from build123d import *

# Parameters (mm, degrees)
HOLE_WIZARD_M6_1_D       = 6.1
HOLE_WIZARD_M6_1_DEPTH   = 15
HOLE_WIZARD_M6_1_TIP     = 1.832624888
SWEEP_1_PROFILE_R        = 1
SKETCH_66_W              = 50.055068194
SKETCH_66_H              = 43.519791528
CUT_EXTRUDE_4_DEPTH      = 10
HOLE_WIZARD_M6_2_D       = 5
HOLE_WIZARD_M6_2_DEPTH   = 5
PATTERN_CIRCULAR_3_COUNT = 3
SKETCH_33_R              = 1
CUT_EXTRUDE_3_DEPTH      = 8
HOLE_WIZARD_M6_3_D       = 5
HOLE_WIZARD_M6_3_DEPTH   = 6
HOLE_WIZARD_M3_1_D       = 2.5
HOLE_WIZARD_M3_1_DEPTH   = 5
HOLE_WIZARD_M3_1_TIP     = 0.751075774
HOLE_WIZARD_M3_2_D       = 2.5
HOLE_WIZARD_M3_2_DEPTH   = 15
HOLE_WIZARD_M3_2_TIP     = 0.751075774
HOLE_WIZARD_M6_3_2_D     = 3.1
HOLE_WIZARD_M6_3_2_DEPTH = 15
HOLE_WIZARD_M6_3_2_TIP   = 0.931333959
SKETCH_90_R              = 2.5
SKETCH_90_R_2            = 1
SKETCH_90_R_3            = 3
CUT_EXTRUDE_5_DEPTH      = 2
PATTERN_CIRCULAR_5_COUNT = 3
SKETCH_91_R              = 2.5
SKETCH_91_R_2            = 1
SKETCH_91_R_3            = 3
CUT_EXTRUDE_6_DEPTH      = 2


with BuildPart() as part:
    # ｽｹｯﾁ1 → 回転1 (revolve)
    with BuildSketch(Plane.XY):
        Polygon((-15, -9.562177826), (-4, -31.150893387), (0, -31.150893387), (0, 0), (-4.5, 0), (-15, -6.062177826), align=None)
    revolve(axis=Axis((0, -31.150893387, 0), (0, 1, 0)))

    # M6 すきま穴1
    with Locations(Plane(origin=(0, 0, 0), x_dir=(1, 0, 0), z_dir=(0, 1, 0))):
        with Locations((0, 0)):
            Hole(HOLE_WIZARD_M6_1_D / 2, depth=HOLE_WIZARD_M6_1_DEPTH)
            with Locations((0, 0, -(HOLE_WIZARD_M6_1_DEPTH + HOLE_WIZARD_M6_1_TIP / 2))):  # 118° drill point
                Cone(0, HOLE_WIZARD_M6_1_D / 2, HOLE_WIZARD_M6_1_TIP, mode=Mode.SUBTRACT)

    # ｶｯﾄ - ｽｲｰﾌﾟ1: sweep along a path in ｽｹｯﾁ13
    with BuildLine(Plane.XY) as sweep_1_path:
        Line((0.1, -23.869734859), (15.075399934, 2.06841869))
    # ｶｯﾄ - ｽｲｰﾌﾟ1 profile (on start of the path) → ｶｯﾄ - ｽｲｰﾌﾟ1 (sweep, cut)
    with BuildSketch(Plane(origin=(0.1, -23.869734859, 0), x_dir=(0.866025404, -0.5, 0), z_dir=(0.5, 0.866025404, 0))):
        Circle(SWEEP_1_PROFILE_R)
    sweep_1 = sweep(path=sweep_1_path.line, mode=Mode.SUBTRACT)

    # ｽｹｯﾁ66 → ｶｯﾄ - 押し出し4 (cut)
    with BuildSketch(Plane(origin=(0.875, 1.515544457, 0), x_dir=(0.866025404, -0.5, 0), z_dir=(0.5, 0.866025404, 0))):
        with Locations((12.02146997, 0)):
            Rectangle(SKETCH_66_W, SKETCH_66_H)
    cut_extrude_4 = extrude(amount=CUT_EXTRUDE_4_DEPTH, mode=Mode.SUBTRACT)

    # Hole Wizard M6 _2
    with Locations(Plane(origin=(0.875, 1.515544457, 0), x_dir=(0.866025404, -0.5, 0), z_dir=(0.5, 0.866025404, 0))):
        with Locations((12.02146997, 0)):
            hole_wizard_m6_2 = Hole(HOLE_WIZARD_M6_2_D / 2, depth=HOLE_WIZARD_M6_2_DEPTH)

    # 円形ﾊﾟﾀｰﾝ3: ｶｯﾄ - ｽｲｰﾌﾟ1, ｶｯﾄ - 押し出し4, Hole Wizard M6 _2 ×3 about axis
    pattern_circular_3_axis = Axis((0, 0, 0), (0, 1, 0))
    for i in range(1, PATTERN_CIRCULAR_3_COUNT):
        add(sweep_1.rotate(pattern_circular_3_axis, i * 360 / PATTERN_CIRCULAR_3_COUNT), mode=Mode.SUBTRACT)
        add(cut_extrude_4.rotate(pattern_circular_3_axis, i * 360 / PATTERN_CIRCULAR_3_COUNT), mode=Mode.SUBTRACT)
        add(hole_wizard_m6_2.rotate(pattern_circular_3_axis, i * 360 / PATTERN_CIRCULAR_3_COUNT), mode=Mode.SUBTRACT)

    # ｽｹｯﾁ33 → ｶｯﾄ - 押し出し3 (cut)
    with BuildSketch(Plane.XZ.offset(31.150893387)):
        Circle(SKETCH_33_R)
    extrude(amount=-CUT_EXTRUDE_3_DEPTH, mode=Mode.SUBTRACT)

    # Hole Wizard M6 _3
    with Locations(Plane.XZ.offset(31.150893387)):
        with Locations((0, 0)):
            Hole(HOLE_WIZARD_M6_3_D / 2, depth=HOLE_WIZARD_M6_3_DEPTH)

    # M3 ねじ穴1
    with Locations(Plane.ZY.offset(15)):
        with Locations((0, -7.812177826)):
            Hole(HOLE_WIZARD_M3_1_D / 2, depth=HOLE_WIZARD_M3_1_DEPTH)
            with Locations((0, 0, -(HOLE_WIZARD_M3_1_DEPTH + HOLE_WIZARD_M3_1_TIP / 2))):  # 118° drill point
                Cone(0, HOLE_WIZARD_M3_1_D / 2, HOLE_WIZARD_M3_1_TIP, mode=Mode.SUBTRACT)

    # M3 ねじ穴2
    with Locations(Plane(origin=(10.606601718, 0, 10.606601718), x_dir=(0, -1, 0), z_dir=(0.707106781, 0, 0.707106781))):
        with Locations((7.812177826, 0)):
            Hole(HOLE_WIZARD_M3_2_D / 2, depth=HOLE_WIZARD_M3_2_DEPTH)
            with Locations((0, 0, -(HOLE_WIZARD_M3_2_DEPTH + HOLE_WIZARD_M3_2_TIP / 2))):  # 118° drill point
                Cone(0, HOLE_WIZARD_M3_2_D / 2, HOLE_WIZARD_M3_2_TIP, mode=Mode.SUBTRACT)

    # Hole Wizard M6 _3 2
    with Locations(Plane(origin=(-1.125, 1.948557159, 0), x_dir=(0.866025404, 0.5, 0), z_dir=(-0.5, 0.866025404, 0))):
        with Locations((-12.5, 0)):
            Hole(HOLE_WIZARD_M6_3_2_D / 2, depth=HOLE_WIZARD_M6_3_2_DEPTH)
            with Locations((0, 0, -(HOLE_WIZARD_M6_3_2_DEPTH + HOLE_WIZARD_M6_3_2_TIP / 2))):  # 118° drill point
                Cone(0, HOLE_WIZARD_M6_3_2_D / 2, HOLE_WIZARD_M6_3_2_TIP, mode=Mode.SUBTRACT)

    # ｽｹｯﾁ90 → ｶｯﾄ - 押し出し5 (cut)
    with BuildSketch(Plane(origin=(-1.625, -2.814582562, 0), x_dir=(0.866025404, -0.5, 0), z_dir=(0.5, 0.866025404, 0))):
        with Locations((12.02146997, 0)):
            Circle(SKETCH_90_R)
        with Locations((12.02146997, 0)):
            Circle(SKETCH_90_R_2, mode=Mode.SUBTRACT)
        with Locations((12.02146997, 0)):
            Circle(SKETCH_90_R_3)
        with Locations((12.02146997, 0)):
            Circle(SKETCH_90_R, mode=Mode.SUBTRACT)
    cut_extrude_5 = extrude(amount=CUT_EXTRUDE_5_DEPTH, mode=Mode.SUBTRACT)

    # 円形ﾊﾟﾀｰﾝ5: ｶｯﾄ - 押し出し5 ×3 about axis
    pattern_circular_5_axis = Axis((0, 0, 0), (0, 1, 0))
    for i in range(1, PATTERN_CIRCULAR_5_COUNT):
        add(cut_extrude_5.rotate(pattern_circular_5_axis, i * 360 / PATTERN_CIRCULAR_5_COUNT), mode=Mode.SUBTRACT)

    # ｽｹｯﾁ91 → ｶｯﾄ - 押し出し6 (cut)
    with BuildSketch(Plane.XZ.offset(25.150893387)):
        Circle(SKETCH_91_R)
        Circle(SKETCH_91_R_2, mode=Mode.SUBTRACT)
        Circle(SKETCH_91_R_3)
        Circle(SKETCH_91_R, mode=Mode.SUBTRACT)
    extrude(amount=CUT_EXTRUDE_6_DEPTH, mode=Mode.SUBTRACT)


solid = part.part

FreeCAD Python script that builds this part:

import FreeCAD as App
import Part
import Sketcher

V = App.Vector
Q = App.Units.Quantity

doc = App.newDocument("Part")
body = doc.addObject("PartDesign::Body", "Body")

sketch1 = body.newObject("Sketcher::SketchObject", "Sketch")
sketch1.AttachmentSupport = (doc.getObject("XY_Plane"), [""])
sketch1.MapMode = "FlatFace"
sketch1.addGeometry(Part.LineSegment(V(-15, -9.6, 0), V(-4, -31.2, 0)), False)
sketch1.addGeometry(Part.LineSegment(V(-4, -31.2, 0), V(0, -31.2, 0)), False)
sketch1.addGeometry(Part.LineSegment(V(0, -31.2, 0), V(0, 0, 0)), False)
sketch1.addGeometry(Part.LineSegment(V(0, 0, 0), V(-4.5, 0, 0)), False)
sketch1.addGeometry(Part.LineSegment(V(-4.5, 0, 0), V(-15, -6.1, 0)), False)
sketch1.addGeometry(Part.LineSegment(V(-15, -6.1, 0), V(-15, -9.6, 0)), False)
sketch1.addConstraint(Sketcher.Constraint("Coincident", 0, 2, 1, 1))
sketch1.addConstraint(Sketcher.Constraint("Coincident", 1, 2, 2, 1))
sketch1.addConstraint(Sketcher.Constraint("Coincident", 2, 2, 3, 1))
sketch1.addConstraint(Sketcher.Constraint("Coincident", 3, 2, 4, 1))
sketch1.addConstraint(Sketcher.Constraint("Coincident", 4, 2, 5, 1))
sketch1.addConstraint(Sketcher.Constraint("Coincident", 5, 2, 0, 1))
sketch1.addConstraint(Sketcher.Constraint("Horizontal", 1))
sketch1.addConstraint(Sketcher.Constraint("Vertical", 2))
sketch1.addConstraint(Sketcher.Constraint("Horizontal", 3))
sketch1.addConstraint(Sketcher.Constraint("Vertical", 5))
sketch1.addConstraint(Sketcher.Constraint("Coincident", 2, 2, -1, 1))
sketch1.addConstraint(Sketcher.Constraint("DistanceX", 1, 1, 1, 2, 4.0))
sketch1.addConstraint(Sketcher.Constraint("Angle", 0, Q("-63 deg")))
sketch1.addConstraint(Sketcher.Constraint("Angle", 4, Q("-150 deg")))
sketch1.addConstraint(Sketcher.Constraint("DistanceX", 3, 2, 3, 1, 4.5))
sketch1.addConstraint(Sketcher.Constraint("DistanceY", 5, 2, 5, 1, 3.5))
sketch1.addConstraint(Sketcher.Constraint("DistanceX", 4, 2, -1, 1, 15.0))
revolution = body.newObject("PartDesign::Revolution", "Revolution")
revolution.Profile = sketch1
revolution.ReferenceAxis = (sketch1, ["V_Axis"])
revolution.Angle = 360

sketch2 = body.newObject("Sketcher::SketchObject", "Sketch001")
sketch2.AttachmentSupport = (doc.getObject("XZ_Plane"), [""])
sketch2.MapMode = "FlatFace"
sketch2.addGeometry(Part.Circle(V(0, 0, 0), V(0, 0, 1), 3), False)
sketch2.addConstraint(Sketcher.Constraint("Coincident", 0, 3, -1, 1))
sketch2.addConstraint(Sketcher.Constraint("Diameter", 0, 6.1))
doc.recompute()
hole = body.newObject("PartDesign::Hole", "Hole")
hole.Profile = sketch2
hole.ThreadType = "None"
hole.Diameter = 6.1
hole.DepthType = "Dimension"
hole.Depth = 15
hole.DrillPoint = "Angled"
hole.DrillPointAngle = 118
hole.Reversed = True

sketch3 = body.newObject("Sketcher::SketchObject", "Sketch002")
sketch3.Placement = App.Placement(V(0.1, -23.869735, 0), App.Rotation(V(0.866025404, -0.5, 0), V(0, 0, -1), V(0.5, 0.866025404, 0), "ZXY"))
sketch3.addGeometry(Part.Circle(V(0, 0, 0), V(0, 0, 1), 1), False)
sketch3.addConstraint(Sketcher.Constraint("Coincident", 0, 3, -1, 1))
sketch3.addConstraint(Sketcher.Constraint("Diameter", 0, 2.0))

sketch4 = body.newObject("Sketcher::SketchObject", "Sketch003")
sketch4.Placement = App.Placement(V(10.410898, -6.010735, 0), App.Rotation(V(0.5, 0.866025404, 0), V(0, 0, 1), V(0.866025404, -0.5, 0), "ZXY"))
sketch4.addGeometry(Part.LineSegment(V(-21, 0, 0), V(9, 0, 0)), False)
sketch4.addConstraint(Sketcher.Constraint("Horizontal", 0))
sketch4.addConstraint(Sketcher.Constraint("PointOnObject", 0, 1, -1))
sketch4.addConstraint(Sketcher.Constraint("DistanceX", 0, 1, 0, 2, 29.9508))
sketch4.addConstraint(Sketcher.Constraint("DistanceX", 0, 1, -1, 1, 20.621797))
doc.recompute()

subtractivepipe = body.newObject("PartDesign::SubtractivePipe", "SubtractivePipe")
subtractivepipe.Profile = sketch3
subtractivepipe.Spine = (sketch4, ["Edge1"])

sketch5 = body.newObject("Sketcher::SketchObject", "Sketch004")
sketch5.Placement = App.Placement(V(0.875, 1.515544, 0), App.Rotation(V(0.866025404, -0.5, 0), V(0, 0, -1), V(0.5, 0.866025404, 0), "ZXY"))
sketch5.addGeometry(Part.LineSegment(V(-13, 22, 0), V(-13, -22, 0)), False)
sketch5.addGeometry(Part.LineSegment(V(-13, -22, 0), V(37, -22, 0)), False)
sketch5.addGeometry(Part.LineSegment(V(37, -22, 0), V(37, 22, 0)), False)
sketch5.addGeometry(Part.LineSegment(V(37, 22, 0), V(-13, 22, 0)), False)
sketch5.addConstraint(Sketcher.Constraint("Coincident", 0, 2, 1, 1))
sketch5.addConstraint(Sketcher.Constraint("Coincident", 1, 2, 2, 1))
sketch5.addConstraint(Sketcher.Constraint("Coincident", 2, 2, 3, 1))
sketch5.addConstraint(Sketcher.Constraint("Coincident", 3, 2, 0, 1))
sketch5.addConstraint(Sketcher.Constraint("Vertical", 0))
sketch5.addConstraint(Sketcher.Constraint("Horizontal", 1))
sketch5.addConstraint(Sketcher.Constraint("Vertical", 2))
sketch5.addConstraint(Sketcher.Constraint("Horizontal", 3))
sketch5.addConstraint(Sketcher.Constraint("DistanceX", 1, 1, 1, 2, 50.055068))
sketch5.addConstraint(Sketcher.Constraint("DistanceY", 0, 2, 0, 1, 43.519792))
sketch5.addConstraint(Sketcher.Constraint("DistanceX", 0, 2, -1, 1, 13.006064))
sketch5.addConstraint(Sketcher.Constraint("DistanceY", 0, 2, -1, 1, 21.759896))
pocket1 = body.newObject("PartDesign::Pocket", "Pocket")
pocket1.Profile = sketch5
pocket1.Length = 10
pocket1.Reversed = True

sketch6 = body.newObject("Sketcher::SketchObject", "Sketch005")
sketch6.Placement = App.Placement(V(0.875, 1.515544, 0), App.Rotation(V(0.866025404, -0.5, 0), V(0, 0, -1), V(0.5, 0.866025404, 0), "ZXY"))
sketch6.addGeometry(Part.Circle(V(12, 0, 0), V(0, 0, 1), 2.5), False)
sketch6.addConstraint(Sketcher.Constraint("PointOnObject", 0, 3, -1))
sketch6.addConstraint(Sketcher.Constraint("Diameter", 0, 5.0))
sketch6.addConstraint(Sketcher.Constraint("DistanceX", -1, 1, 0, 3, 12.02147))
doc.recompute()
hole2 = body.newObject("PartDesign::Hole", "Hole001")
hole2.Profile = sketch6
hole2.ThreadType = "None"
hole2.Diameter = 5
hole2.DepthType = "Dimension"
hole2.Depth = 5
hole2.DrillPoint = "Flat"
doc.recompute()

polarpattern = body.newObject("PartDesign::PolarPattern", "PolarPattern")
polarpattern.Originals = [subtractivepipe, pocket1, hole2]
polarpattern.Axis = (doc.getObject("Y_Axis"), [""])
polarpattern.Angle = 360
polarpattern.Occurrences = 3
body.Tip = polarpattern

sketch7 = body.newObject("Sketcher::SketchObject", "Sketch006")
sketch7.AttachmentSupport = (doc.getObject("XZ_Plane"), [""])
sketch7.MapMode = "FlatFace"
sketch7.AttachmentOffset = App.Placement(V(0, 0, 31.150893), App.Rotation())
sketch7.addGeometry(Part.Circle(V(0, 0, 0), V(0, 0, 1), 1), False)
sketch7.addConstraint(Sketcher.Constraint("Coincident", 0, 3, -1, 1))
sketch7.addConstraint(Sketcher.Constraint("Diameter", 0, 2.0))
pocket2 = body.newObject("PartDesign::Pocket", "Pocket001")
pocket2.Profile = sketch7
pocket2.Length = 8

sketch8 = body.newObject("Sketcher::SketchObject", "Sketch007")
sketch8.AttachmentSupport = (doc.getObject("XZ_Plane"), [""])
sketch8.MapMode = "FlatFace"
sketch8.AttachmentOffset = App.Placement(V(0, 0, 31.150893), App.Rotation())
sketch8.addGeometry(Part.Circle(V(0, 0, 0), V(0, 0, 1), 2.5), False)
sketch8.addConstraint(Sketcher.Constraint("Coincident", 0, 3, -1, 1))
sketch8.addConstraint(Sketcher.Constraint("Diameter", 0, 5.0))
doc.recompute()
hole3 = body.newObject("PartDesign::Hole", "Hole002")
hole3.Profile = sketch8
hole3.ThreadType = "None"
hole3.Diameter = 5
hole3.DepthType = "Dimension"
hole3.Depth = 6
hole3.DrillPoint = "Flat"

sketch9 = body.newObject("Sketcher::SketchObject", "Sketch008")
sketch9.AttachmentSupport = (doc.getObject("YZ_Plane"), [""])
sketch9.MapMode = "FlatFace"
sketch9.AttachmentOffset = App.Placement(V(0, 0, -15), App.Rotation())
sketch9.addGeometry(Part.Circle(V(-7.8, 0, 0), V(0, 0, 1), 1.2), False)
sketch9.addConstraint(Sketcher.Constraint("PointOnObject", 0, 3, -1))
sketch9.addConstraint(Sketcher.Constraint("Diameter", 0, 2.5))
sketch9.addConstraint(Sketcher.Constraint("DistanceX", 0, 3, -1, 1, 7.812178))
doc.recompute()
hole4 = body.newObject("PartDesign::Hole", "Hole003")
hole4.Profile = sketch9
hole4.ThreadType = "None"
hole4.Diameter = 2.5
hole4.DepthType = "Dimension"
hole4.Depth = 5
hole4.DrillPoint = "Angled"
hole4.DrillPointAngle = 118
hole4.Reversed = True

sketch10 = body.newObject("Sketcher::SketchObject", "Sketch009")
sketch10.Placement = App.Placement(V(10.606602, 0, 10.606602), App.Rotation(V(0, -1, 0), V(0.707106781, 0, -0.707106781), V(0.707106781, 0, 0.707106781), "ZXY"))
sketch10.addGeometry(Part.Circle(V(7.8, 0, 0), V(0, 0, 1), 1.2), False)
sketch10.addConstraint(Sketcher.Constraint("PointOnObject", 0, 3, -1))
sketch10.addConstraint(Sketcher.Constraint("Diameter", 0, 2.5))
sketch10.addConstraint(Sketcher.Constraint("DistanceX", -1, 1, 0, 3, 7.812178))
doc.recompute()
hole5 = body.newObject("PartDesign::Hole", "Hole004")
hole5.Profile = sketch10
hole5.ThreadType = "None"
hole5.Diameter = 2.5
hole5.DepthType = "Dimension"
hole5.Depth = 15
hole5.DrillPoint = "Angled"
hole5.DrillPointAngle = 118

sketch11 = body.newObject("Sketcher::SketchObject", "Sketch010")
sketch11.Placement = App.Placement(V(-1.125, 1.948557, 0), App.Rotation(V(0.866025404, 0.5, 0), V(0, 0, -1), V(-0.5, 0.866025404, 0), "ZXY"))
sketch11.addGeometry(Part.Circle(V(-12.5, 0, 0), V(0, 0, 1), 1.6), False)
sketch11.addConstraint(Sketcher.Constraint("PointOnObject", 0, 3, -1))
sketch11.addConstraint(Sketcher.Constraint("Diameter", 0, 3.1))
sketch11.addConstraint(Sketcher.Constraint("DistanceX", 0, 3, -1, 1, 12.5))
doc.recompute()
hole6 = body.newObject("PartDesign::Hole", "Hole005")
hole6.Profile = sketch11
hole6.ThreadType = "None"
hole6.Diameter = 3.1
hole6.DepthType = "Dimension"
hole6.Depth = 15
hole6.DrillPoint = "Angled"
hole6.DrillPointAngle = 118

sketch12 = body.newObject("Sketcher::SketchObject", "Sketch011")
sketch12.Placement = App.Placement(V(-1.625, -2.814583, 0), App.Rotation(V(0.866025404, -0.5, 0), V(0, 0, -1), V(0.5, 0.866025404, 0), "ZXY"))
sketch12.addGeometry(Part.Circle(V(12, 0, 0), V(0, 0, 1), 3), False)
sketch12.addGeometry(Part.Circle(V(12, 0, 0), V(0, 0, 1), 2.5), False)
sketch12.addConstraint(Sketcher.Constraint("Coincident", 1, 3, 0, 3))
sketch12.addConstraint(Sketcher.Constraint("PointOnObject", 0, 3, -1))
sketch12.addConstraint(Sketcher.Constraint("Diameter", 0, 6.0))
sketch12.addConstraint(Sketcher.Constraint("Diameter", 1, 5.0))
sketch12.addConstraint(Sketcher.Constraint("DistanceX", -1, 1, 0, 3, 12.02147))
pocket3 = body.newObject("PartDesign::Pocket", "Pocket002")
pocket3.Profile = sketch12
pocket3.Length = 2
pocket3.Reversed = True
doc.recompute()

polarpattern2 = body.newObject("PartDesign::PolarPattern", "PolarPattern001")
polarpattern2.Originals = [pocket3]
polarpattern2.Axis = (doc.getObject("Y_Axis"), [""])
polarpattern2.Angle = 360
polarpattern2.Occurrences = 3
body.Tip = polarpattern2

sketch13 = body.newObject("Sketcher::SketchObject", "Sketch012")
sketch13.AttachmentSupport = (doc.getObject("XZ_Plane"), [""])
sketch13.MapMode = "FlatFace"
sketch13.AttachmentOffset = App.Placement(V(0, 0, 25.150893), App.Rotation())
sketch13.addGeometry(Part.Circle(V(0, 0, 0), V(0, 0, 1), 3), False)
sketch13.addGeometry(Part.Circle(V(0, 0, 0), V(0, 0, 1), 2.5), False)
sketch13.addConstraint(Sketcher.Constraint("Coincident", 0, 3, -1, 1))
sketch13.addConstraint(Sketcher.Constraint("Coincident", 1, 3, -1, 1))
sketch13.addConstraint(Sketcher.Constraint("Diameter", 0, 6.0))
sketch13.addConstraint(Sketcher.Constraint("Diameter", 1, 5.0))
pocket4 = body.newObject("PartDesign::Pocket", "Pocket003")
pocket4.Profile = sketch13
pocket4.Length = 2
pocket4.Reversed = True

doc.recompute()
